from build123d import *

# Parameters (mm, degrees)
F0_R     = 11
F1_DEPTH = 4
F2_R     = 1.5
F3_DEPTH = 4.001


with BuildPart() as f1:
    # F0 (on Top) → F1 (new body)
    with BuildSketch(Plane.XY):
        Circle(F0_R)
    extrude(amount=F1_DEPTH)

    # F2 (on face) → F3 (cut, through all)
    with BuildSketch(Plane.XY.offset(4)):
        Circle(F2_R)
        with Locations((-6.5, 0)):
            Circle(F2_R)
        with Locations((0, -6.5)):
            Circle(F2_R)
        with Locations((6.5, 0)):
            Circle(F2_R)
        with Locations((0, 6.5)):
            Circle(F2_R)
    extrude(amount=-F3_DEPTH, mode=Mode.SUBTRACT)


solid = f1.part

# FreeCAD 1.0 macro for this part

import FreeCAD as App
import Part
import Sketcher
from FreeCAD import Vector
Q = App.Units.Quantity

doc = App.newDocument("Part")
body = doc.addObject("PartDesign::Body", "Body")

# Sketch on XY plane
sketch1 = body.newObject("Sketcher::SketchObject", "Sketch")
sketch1.AttachmentSupport = (doc.getObject("XY_Plane"), [""])
sketch1.MapMode = "FlatFace"
sketch1.addGeometry(Part.Circle(Vector(0, 0, 0), Vector(0, 0, 1), 11), False)
sketch1.addConstraint(Sketcher.Constraint("Coincident", 0, 3, -1, 1))
sketch1.addConstraint(Sketcher.Constraint("Diameter", 0, Q("22 mm")))
pad1 = body.newObject("PartDesign::Pad", "Pad")
pad1.Profile = sketch1
pad1.Length = 4

# Sketch on XY plane
sketch2 = body.newObject("Sketcher::SketchObject", "Sketch001")
sketch2.AttachmentSupport = (doc.getObject("XY_Plane"), [""])
sketch2.MapMode = "FlatFace"
sketch2.AttachmentOffset = App.Placement(Vector(0, 0, 4), App.Rotation())
sketch2.addGeometry(Part.Circle(Vector(0, 0, 0), Vector(0, 0, 1), 1.5), False)
sketch2.addGeometry(Part.Circle(Vector(-6.5, 0, 0), Vector(0, 0, 1), 1.5), False)
sketch2.addGeometry(Part.Circle(Vector(0, -6.5, 0), Vector(0, 0, 1), 1.5), False)
sketch2.addGeometry(Part.Circle(Vector(6.5, 0, 0), Vector(0, 0, 1), 1.5), False)
sketch2.addGeometry(Part.Circle(Vector(0, 6.5, 0), Vector(0, 0, 1), 1.5), False)
sketch2.addConstraint(Sketcher.Constraint("Coincident", 0, 3, -1, 1))
sketch2.addConstraint(Sketcher.Constraint("Equal", 0, 1))
sketch2.addConstraint(Sketcher.Constraint("Equal", 1, 2))
sketch2.addConstraint(Sketcher.Constraint("Equal", 2, 3))
sketch2.addConstraint(Sketcher.Constraint("Equal", 3, 4))
sketch2.addConstraint(Sketcher.Constraint("Symmetric", 1, 3, 3, 3, -1, 1))
sketch2.addConstraint(Sketcher.Constraint("Symmetric", 2, 3, 4, 3, -1, 1))
sketch2.addConstraint(Sketcher.Constraint("PointOnObject", 1, 3, -1))
sketch2.addConstraint(Sketcher.Constraint("PointOnObject", 2, 3, -2))
sketch2.addConstraint(Sketcher.Constraint("Diameter", 0, Q("3 mm")))
sketch2.addConstraint(Sketcher.Constraint("DistanceX", 1, 3, 3, 3, Q("13 mm")))
sketch2.addConstraint(Sketcher.Constraint("DistanceY", 2, 3, 4, 3, Q("13 mm")))
pocket1 = body.newObject("PartDesign::Pocket", "Pocket")
pocket1.Profile = sketch2
pocket1.Type = "ThroughAll"

doc.recompute()
